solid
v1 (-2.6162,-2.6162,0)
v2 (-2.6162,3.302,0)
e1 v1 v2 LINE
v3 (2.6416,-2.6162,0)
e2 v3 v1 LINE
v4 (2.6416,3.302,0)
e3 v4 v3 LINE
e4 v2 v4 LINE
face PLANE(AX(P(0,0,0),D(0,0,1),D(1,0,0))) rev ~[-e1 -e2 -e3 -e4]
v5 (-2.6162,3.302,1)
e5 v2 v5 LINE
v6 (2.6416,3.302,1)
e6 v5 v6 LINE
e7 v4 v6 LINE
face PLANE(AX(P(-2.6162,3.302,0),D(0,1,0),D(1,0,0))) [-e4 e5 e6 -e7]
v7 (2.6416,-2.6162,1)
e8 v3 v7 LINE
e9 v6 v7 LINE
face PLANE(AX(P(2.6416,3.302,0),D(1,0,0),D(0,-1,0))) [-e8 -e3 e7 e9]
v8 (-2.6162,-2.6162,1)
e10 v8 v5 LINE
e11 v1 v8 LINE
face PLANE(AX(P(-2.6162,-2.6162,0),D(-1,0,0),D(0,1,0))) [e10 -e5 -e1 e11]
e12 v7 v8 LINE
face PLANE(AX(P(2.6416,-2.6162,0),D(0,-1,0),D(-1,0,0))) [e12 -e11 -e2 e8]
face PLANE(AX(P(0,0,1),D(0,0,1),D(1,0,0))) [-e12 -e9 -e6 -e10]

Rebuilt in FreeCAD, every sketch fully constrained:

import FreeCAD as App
import Part
import Sketcher
Q = App.Units.Quantity


def add_polygon(sketch, points):
    """Adds a closed chain of lines whose ends are joined by coincident constraints."""
    first, n = sketch.GeometryCount, len(points)
    for a, b in zip(points, points[1:] + points[:1]):
        sketch.addGeometry(Part.LineSegment(App.Vector(*a, 0), App.Vector(*b, 0)), False)
    for i in range(n):
        sketch.addConstraint(Sketcher.Constraint("Coincident", first + i, 2, first + (i + 1) % n, 1))

doc = App.newDocument("Part")
params = doc.addObject("Spreadsheet::Sheet", "Params")
for row, (alias, value) in enumerate([
    ("sketch1_width", "0.207 in"),
    ("sketch1_height", "0.233 in"),
    ("pad1_length", "1 mm"),
], start=1):
    params.set(f"A{row}", alias)
    params.set(f"B{row}", "=" + value)
    params.setAlias(f"B{row}", alias)

body = doc.addObject("PartDesign::Body", "Body")

sketch1 = body.newObject("Sketcher::SketchObject", "Sketch")
sketch1.AttachmentSupport = (doc.getObject("XY_Plane"), [""])
sketch1.MapMode = "FlatFace"
add_polygon(sketch1, [(3, 3), (-3, 3), (-3, -3), (3, -3)])
sketch1.addConstraint(Sketcher.Constraint("Horizontal", 0))
sketch1.addConstraint(Sketcher.Constraint("Vertical", 1))
sketch1.addConstraint(Sketcher.Constraint("Horizontal", 2))
sketch1.addConstraint(Sketcher.Constraint("Vertical", 3))
sketch1.addConstraint(Sketcher.Constraint("DistanceX", 0, 2, 0, 1, Q("0.207 in")))
sketch1.addConstraint(Sketcher.Constraint("DistanceY", 1, 2, 1, 1, Q("0.233 in")))
sketch1.addConstraint(Sketcher.Constraint("DistanceY", -1, 1, 0, 2, Q("0.13 in")))
sketch1.addConstraint(Sketcher.Constraint("DistanceX", 0, 2, -1, 1, Q("0.103 in")))
sketch1.setExpression("Constraints[8]", "Params.sketch1_width")
sketch1.setExpression("Constraints[9]", "Params.sketch1_height")
pad1 = body.newObject("PartDesign::Pad", "Pad")
pad1.Profile = sketch1
pad1.setExpression("Length", "Params.pad1_length")

doc.recompute()
